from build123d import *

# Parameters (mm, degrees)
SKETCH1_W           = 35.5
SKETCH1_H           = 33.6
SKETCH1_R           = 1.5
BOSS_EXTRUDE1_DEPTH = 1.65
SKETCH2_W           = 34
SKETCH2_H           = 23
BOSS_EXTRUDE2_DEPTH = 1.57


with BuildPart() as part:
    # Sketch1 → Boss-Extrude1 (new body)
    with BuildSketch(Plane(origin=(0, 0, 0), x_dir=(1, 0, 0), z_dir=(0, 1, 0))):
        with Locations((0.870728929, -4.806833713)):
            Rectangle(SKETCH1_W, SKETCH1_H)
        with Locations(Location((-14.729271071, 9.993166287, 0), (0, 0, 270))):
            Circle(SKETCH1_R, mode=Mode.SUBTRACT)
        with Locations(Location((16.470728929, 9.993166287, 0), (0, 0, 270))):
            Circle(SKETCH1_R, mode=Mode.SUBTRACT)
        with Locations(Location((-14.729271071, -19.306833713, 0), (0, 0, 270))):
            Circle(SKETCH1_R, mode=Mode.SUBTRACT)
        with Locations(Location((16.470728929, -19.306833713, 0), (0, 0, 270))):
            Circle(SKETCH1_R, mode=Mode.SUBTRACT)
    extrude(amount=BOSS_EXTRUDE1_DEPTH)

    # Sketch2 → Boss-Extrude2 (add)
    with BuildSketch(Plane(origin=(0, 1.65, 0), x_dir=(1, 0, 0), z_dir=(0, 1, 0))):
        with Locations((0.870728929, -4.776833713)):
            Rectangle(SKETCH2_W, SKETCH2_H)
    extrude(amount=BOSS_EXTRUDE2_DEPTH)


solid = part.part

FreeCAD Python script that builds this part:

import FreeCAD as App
import Part
import Sketcher

V = App.Vector
Q = App.Units.Quantity

doc = App.newDocument("Part")
body = doc.addObject("PartDesign::Body", "Body")

sketch1 = doc.addObject("Sketcher::SketchObject", "Sketch")
body.addObject(sketch1)
sketch1.AttachmentSupport = (doc.XZ_Plane, [""])
sketch1.MapMode = "FlatFace"
sketch1.addGeometry([
    Part.LineSegment(V(-16.9, -12, 0), V(-16.9, 21.6, 0)),
    Part.LineSegment(V(-16.9, 21.6, 0), V(18.6, 21.6, 0)),
    Part.LineSegment(V(18.6, 21.6, 0), V(18.6, -12, 0)),
    Part.LineSegment(V(18.6, -12, 0), V(-16.9, -12, 0)),
    Part.Circle(V(-14.7, 19.3, 0), V(0, 0, 1), 1.5),
    Part.Circle(V(16.5, 19.3, 0), V(0, 0, 1), 1.5),
    Part.Circle(V(-14.7, -10, 0), V(0, 0, 1), 1.5),
    Part.Circle(V(16.5, -10, 0), V(0, 0, 1), 1.5),
], False)
sketch1.addConstraint([
    Sketcher.Constraint("Coincident", 0, 2, 1, 1),
    Sketcher.Constraint("Coincident", 1, 2, 2, 1),
    Sketcher.Constraint("Coincident", 2, 2, 3, 1),
    Sketcher.Constraint("Coincident", 3, 2, 0, 1),
    Sketcher.Constraint("Vertical", 0),
    Sketcher.Constraint("Horizontal", 1),
    Sketcher.Constraint("Vertical", 2),
    Sketcher.Constraint("Horizontal", 3),
    Sketcher.Constraint("Equal", 4, 5),
    Sketcher.Constraint("Equal", 5, 6),
    Sketcher.Constraint("Equal", 6, 7),
    Sketcher.Constraint("Horizontal", 4, 3, 5, 3),
    Sketcher.Constraint("Horizontal", 6, 3, 7, 3),
    Sketcher.Constraint("Vertical", 4, 3, 6, 3),
    Sketcher.Constraint("Vertical", 5, 3, 7, 3),
    Sketcher.Constraint("Diameter", 4, Q("3 mm")),
    Sketcher.Constraint("DistanceX", 1, 1, 1, 2, Q("35.5 mm")),
    Sketcher.Constraint("DistanceY", 0, 1, 0, 2, Q("33.6 mm")),
    Sketcher.Constraint("DistanceY", 2, 2, 7, 3, Q("2 mm")),
    Sketcher.Constraint("DistanceX", 4, 3, 5, 3, Q("31.2 mm")),
    Sketcher.Constraint("DistanceY", 6, 3, 4, 3, Q("29.3 mm")),
    Sketcher.Constraint("DistanceX", 0, 2, 4, 3, Q("2.15 mm")),
    Sketcher.Constraint("DistanceX", 4, 3, -1, 1, Q("14.729271 mm")),
    Sketcher.Constraint("DistanceY", -1, 1, 4, 3, Q("19.306834 mm")),
])
pad1 = doc.addObject("PartDesign::Pad", "Pad")
body.addObject(pad1)
pad1.Profile = sketch1
pad1.Length = 1.65
pad1.Reversed = True

sketch2 = doc.addObject("Sketcher::SketchObject", "Sketch001")
body.addObject(sketch2)
sketch2.AttachmentSupport = (doc.XZ_Plane, [""])
sketch2.MapMode = "FlatFace"
sketch2.AttachmentOffset = App.Placement(V(0, 0, -1.65), App.Rotation())
sketch2.addGeometry([
    Part.LineSegment(V(-16, -7, 0), V(-16, 16, 0)),
    Part.LineSegment(V(-16, 16, 0), V(18, 16, 0)),
    Part.LineSegment(V(18, 16, 0), V(18, -7, 0)),
    Part.LineSegment(V(18, -7, 0), V(-16, -7, 0)),
], False)
sketch2.addConstraint([
    Sketcher.Constraint("Coincident", 0, 2, 1, 1),
    Sketcher.Constraint("Coincident", 1, 2, 2, 1),
    Sketcher.Constraint("Coincident", 2, 2, 3, 1),
    Sketcher.Constraint("Coincident", 3, 2, 0, 1),
    Sketcher.Constraint("Vertical", 0),
    Sketcher.Constraint("Horizontal", 1),
    Sketcher.Constraint("Vertical", 2),
    Sketcher.Constraint("Horizontal", 3),
    Sketcher.Constraint("DistanceX", 1, 1, 1, 2, Q("34 mm")),
    Sketcher.Constraint("DistanceY", 0, 1, 0, 2, Q("23 mm")),
    Sketcher.Constraint("DistanceX", 0, 2, -1, 1, Q("16.129271 mm")),
    Sketcher.Constraint("DistanceY", -1, 1, 0, 2, Q("16.276834 mm")),
])
pad2 = doc.addObject("PartDesign::Pad", "Pad001")
body.addObject(pad2)
pad2.Profile = sketch2
pad2.Length = 1.57
pad2.Reversed = True

doc.recompute()
